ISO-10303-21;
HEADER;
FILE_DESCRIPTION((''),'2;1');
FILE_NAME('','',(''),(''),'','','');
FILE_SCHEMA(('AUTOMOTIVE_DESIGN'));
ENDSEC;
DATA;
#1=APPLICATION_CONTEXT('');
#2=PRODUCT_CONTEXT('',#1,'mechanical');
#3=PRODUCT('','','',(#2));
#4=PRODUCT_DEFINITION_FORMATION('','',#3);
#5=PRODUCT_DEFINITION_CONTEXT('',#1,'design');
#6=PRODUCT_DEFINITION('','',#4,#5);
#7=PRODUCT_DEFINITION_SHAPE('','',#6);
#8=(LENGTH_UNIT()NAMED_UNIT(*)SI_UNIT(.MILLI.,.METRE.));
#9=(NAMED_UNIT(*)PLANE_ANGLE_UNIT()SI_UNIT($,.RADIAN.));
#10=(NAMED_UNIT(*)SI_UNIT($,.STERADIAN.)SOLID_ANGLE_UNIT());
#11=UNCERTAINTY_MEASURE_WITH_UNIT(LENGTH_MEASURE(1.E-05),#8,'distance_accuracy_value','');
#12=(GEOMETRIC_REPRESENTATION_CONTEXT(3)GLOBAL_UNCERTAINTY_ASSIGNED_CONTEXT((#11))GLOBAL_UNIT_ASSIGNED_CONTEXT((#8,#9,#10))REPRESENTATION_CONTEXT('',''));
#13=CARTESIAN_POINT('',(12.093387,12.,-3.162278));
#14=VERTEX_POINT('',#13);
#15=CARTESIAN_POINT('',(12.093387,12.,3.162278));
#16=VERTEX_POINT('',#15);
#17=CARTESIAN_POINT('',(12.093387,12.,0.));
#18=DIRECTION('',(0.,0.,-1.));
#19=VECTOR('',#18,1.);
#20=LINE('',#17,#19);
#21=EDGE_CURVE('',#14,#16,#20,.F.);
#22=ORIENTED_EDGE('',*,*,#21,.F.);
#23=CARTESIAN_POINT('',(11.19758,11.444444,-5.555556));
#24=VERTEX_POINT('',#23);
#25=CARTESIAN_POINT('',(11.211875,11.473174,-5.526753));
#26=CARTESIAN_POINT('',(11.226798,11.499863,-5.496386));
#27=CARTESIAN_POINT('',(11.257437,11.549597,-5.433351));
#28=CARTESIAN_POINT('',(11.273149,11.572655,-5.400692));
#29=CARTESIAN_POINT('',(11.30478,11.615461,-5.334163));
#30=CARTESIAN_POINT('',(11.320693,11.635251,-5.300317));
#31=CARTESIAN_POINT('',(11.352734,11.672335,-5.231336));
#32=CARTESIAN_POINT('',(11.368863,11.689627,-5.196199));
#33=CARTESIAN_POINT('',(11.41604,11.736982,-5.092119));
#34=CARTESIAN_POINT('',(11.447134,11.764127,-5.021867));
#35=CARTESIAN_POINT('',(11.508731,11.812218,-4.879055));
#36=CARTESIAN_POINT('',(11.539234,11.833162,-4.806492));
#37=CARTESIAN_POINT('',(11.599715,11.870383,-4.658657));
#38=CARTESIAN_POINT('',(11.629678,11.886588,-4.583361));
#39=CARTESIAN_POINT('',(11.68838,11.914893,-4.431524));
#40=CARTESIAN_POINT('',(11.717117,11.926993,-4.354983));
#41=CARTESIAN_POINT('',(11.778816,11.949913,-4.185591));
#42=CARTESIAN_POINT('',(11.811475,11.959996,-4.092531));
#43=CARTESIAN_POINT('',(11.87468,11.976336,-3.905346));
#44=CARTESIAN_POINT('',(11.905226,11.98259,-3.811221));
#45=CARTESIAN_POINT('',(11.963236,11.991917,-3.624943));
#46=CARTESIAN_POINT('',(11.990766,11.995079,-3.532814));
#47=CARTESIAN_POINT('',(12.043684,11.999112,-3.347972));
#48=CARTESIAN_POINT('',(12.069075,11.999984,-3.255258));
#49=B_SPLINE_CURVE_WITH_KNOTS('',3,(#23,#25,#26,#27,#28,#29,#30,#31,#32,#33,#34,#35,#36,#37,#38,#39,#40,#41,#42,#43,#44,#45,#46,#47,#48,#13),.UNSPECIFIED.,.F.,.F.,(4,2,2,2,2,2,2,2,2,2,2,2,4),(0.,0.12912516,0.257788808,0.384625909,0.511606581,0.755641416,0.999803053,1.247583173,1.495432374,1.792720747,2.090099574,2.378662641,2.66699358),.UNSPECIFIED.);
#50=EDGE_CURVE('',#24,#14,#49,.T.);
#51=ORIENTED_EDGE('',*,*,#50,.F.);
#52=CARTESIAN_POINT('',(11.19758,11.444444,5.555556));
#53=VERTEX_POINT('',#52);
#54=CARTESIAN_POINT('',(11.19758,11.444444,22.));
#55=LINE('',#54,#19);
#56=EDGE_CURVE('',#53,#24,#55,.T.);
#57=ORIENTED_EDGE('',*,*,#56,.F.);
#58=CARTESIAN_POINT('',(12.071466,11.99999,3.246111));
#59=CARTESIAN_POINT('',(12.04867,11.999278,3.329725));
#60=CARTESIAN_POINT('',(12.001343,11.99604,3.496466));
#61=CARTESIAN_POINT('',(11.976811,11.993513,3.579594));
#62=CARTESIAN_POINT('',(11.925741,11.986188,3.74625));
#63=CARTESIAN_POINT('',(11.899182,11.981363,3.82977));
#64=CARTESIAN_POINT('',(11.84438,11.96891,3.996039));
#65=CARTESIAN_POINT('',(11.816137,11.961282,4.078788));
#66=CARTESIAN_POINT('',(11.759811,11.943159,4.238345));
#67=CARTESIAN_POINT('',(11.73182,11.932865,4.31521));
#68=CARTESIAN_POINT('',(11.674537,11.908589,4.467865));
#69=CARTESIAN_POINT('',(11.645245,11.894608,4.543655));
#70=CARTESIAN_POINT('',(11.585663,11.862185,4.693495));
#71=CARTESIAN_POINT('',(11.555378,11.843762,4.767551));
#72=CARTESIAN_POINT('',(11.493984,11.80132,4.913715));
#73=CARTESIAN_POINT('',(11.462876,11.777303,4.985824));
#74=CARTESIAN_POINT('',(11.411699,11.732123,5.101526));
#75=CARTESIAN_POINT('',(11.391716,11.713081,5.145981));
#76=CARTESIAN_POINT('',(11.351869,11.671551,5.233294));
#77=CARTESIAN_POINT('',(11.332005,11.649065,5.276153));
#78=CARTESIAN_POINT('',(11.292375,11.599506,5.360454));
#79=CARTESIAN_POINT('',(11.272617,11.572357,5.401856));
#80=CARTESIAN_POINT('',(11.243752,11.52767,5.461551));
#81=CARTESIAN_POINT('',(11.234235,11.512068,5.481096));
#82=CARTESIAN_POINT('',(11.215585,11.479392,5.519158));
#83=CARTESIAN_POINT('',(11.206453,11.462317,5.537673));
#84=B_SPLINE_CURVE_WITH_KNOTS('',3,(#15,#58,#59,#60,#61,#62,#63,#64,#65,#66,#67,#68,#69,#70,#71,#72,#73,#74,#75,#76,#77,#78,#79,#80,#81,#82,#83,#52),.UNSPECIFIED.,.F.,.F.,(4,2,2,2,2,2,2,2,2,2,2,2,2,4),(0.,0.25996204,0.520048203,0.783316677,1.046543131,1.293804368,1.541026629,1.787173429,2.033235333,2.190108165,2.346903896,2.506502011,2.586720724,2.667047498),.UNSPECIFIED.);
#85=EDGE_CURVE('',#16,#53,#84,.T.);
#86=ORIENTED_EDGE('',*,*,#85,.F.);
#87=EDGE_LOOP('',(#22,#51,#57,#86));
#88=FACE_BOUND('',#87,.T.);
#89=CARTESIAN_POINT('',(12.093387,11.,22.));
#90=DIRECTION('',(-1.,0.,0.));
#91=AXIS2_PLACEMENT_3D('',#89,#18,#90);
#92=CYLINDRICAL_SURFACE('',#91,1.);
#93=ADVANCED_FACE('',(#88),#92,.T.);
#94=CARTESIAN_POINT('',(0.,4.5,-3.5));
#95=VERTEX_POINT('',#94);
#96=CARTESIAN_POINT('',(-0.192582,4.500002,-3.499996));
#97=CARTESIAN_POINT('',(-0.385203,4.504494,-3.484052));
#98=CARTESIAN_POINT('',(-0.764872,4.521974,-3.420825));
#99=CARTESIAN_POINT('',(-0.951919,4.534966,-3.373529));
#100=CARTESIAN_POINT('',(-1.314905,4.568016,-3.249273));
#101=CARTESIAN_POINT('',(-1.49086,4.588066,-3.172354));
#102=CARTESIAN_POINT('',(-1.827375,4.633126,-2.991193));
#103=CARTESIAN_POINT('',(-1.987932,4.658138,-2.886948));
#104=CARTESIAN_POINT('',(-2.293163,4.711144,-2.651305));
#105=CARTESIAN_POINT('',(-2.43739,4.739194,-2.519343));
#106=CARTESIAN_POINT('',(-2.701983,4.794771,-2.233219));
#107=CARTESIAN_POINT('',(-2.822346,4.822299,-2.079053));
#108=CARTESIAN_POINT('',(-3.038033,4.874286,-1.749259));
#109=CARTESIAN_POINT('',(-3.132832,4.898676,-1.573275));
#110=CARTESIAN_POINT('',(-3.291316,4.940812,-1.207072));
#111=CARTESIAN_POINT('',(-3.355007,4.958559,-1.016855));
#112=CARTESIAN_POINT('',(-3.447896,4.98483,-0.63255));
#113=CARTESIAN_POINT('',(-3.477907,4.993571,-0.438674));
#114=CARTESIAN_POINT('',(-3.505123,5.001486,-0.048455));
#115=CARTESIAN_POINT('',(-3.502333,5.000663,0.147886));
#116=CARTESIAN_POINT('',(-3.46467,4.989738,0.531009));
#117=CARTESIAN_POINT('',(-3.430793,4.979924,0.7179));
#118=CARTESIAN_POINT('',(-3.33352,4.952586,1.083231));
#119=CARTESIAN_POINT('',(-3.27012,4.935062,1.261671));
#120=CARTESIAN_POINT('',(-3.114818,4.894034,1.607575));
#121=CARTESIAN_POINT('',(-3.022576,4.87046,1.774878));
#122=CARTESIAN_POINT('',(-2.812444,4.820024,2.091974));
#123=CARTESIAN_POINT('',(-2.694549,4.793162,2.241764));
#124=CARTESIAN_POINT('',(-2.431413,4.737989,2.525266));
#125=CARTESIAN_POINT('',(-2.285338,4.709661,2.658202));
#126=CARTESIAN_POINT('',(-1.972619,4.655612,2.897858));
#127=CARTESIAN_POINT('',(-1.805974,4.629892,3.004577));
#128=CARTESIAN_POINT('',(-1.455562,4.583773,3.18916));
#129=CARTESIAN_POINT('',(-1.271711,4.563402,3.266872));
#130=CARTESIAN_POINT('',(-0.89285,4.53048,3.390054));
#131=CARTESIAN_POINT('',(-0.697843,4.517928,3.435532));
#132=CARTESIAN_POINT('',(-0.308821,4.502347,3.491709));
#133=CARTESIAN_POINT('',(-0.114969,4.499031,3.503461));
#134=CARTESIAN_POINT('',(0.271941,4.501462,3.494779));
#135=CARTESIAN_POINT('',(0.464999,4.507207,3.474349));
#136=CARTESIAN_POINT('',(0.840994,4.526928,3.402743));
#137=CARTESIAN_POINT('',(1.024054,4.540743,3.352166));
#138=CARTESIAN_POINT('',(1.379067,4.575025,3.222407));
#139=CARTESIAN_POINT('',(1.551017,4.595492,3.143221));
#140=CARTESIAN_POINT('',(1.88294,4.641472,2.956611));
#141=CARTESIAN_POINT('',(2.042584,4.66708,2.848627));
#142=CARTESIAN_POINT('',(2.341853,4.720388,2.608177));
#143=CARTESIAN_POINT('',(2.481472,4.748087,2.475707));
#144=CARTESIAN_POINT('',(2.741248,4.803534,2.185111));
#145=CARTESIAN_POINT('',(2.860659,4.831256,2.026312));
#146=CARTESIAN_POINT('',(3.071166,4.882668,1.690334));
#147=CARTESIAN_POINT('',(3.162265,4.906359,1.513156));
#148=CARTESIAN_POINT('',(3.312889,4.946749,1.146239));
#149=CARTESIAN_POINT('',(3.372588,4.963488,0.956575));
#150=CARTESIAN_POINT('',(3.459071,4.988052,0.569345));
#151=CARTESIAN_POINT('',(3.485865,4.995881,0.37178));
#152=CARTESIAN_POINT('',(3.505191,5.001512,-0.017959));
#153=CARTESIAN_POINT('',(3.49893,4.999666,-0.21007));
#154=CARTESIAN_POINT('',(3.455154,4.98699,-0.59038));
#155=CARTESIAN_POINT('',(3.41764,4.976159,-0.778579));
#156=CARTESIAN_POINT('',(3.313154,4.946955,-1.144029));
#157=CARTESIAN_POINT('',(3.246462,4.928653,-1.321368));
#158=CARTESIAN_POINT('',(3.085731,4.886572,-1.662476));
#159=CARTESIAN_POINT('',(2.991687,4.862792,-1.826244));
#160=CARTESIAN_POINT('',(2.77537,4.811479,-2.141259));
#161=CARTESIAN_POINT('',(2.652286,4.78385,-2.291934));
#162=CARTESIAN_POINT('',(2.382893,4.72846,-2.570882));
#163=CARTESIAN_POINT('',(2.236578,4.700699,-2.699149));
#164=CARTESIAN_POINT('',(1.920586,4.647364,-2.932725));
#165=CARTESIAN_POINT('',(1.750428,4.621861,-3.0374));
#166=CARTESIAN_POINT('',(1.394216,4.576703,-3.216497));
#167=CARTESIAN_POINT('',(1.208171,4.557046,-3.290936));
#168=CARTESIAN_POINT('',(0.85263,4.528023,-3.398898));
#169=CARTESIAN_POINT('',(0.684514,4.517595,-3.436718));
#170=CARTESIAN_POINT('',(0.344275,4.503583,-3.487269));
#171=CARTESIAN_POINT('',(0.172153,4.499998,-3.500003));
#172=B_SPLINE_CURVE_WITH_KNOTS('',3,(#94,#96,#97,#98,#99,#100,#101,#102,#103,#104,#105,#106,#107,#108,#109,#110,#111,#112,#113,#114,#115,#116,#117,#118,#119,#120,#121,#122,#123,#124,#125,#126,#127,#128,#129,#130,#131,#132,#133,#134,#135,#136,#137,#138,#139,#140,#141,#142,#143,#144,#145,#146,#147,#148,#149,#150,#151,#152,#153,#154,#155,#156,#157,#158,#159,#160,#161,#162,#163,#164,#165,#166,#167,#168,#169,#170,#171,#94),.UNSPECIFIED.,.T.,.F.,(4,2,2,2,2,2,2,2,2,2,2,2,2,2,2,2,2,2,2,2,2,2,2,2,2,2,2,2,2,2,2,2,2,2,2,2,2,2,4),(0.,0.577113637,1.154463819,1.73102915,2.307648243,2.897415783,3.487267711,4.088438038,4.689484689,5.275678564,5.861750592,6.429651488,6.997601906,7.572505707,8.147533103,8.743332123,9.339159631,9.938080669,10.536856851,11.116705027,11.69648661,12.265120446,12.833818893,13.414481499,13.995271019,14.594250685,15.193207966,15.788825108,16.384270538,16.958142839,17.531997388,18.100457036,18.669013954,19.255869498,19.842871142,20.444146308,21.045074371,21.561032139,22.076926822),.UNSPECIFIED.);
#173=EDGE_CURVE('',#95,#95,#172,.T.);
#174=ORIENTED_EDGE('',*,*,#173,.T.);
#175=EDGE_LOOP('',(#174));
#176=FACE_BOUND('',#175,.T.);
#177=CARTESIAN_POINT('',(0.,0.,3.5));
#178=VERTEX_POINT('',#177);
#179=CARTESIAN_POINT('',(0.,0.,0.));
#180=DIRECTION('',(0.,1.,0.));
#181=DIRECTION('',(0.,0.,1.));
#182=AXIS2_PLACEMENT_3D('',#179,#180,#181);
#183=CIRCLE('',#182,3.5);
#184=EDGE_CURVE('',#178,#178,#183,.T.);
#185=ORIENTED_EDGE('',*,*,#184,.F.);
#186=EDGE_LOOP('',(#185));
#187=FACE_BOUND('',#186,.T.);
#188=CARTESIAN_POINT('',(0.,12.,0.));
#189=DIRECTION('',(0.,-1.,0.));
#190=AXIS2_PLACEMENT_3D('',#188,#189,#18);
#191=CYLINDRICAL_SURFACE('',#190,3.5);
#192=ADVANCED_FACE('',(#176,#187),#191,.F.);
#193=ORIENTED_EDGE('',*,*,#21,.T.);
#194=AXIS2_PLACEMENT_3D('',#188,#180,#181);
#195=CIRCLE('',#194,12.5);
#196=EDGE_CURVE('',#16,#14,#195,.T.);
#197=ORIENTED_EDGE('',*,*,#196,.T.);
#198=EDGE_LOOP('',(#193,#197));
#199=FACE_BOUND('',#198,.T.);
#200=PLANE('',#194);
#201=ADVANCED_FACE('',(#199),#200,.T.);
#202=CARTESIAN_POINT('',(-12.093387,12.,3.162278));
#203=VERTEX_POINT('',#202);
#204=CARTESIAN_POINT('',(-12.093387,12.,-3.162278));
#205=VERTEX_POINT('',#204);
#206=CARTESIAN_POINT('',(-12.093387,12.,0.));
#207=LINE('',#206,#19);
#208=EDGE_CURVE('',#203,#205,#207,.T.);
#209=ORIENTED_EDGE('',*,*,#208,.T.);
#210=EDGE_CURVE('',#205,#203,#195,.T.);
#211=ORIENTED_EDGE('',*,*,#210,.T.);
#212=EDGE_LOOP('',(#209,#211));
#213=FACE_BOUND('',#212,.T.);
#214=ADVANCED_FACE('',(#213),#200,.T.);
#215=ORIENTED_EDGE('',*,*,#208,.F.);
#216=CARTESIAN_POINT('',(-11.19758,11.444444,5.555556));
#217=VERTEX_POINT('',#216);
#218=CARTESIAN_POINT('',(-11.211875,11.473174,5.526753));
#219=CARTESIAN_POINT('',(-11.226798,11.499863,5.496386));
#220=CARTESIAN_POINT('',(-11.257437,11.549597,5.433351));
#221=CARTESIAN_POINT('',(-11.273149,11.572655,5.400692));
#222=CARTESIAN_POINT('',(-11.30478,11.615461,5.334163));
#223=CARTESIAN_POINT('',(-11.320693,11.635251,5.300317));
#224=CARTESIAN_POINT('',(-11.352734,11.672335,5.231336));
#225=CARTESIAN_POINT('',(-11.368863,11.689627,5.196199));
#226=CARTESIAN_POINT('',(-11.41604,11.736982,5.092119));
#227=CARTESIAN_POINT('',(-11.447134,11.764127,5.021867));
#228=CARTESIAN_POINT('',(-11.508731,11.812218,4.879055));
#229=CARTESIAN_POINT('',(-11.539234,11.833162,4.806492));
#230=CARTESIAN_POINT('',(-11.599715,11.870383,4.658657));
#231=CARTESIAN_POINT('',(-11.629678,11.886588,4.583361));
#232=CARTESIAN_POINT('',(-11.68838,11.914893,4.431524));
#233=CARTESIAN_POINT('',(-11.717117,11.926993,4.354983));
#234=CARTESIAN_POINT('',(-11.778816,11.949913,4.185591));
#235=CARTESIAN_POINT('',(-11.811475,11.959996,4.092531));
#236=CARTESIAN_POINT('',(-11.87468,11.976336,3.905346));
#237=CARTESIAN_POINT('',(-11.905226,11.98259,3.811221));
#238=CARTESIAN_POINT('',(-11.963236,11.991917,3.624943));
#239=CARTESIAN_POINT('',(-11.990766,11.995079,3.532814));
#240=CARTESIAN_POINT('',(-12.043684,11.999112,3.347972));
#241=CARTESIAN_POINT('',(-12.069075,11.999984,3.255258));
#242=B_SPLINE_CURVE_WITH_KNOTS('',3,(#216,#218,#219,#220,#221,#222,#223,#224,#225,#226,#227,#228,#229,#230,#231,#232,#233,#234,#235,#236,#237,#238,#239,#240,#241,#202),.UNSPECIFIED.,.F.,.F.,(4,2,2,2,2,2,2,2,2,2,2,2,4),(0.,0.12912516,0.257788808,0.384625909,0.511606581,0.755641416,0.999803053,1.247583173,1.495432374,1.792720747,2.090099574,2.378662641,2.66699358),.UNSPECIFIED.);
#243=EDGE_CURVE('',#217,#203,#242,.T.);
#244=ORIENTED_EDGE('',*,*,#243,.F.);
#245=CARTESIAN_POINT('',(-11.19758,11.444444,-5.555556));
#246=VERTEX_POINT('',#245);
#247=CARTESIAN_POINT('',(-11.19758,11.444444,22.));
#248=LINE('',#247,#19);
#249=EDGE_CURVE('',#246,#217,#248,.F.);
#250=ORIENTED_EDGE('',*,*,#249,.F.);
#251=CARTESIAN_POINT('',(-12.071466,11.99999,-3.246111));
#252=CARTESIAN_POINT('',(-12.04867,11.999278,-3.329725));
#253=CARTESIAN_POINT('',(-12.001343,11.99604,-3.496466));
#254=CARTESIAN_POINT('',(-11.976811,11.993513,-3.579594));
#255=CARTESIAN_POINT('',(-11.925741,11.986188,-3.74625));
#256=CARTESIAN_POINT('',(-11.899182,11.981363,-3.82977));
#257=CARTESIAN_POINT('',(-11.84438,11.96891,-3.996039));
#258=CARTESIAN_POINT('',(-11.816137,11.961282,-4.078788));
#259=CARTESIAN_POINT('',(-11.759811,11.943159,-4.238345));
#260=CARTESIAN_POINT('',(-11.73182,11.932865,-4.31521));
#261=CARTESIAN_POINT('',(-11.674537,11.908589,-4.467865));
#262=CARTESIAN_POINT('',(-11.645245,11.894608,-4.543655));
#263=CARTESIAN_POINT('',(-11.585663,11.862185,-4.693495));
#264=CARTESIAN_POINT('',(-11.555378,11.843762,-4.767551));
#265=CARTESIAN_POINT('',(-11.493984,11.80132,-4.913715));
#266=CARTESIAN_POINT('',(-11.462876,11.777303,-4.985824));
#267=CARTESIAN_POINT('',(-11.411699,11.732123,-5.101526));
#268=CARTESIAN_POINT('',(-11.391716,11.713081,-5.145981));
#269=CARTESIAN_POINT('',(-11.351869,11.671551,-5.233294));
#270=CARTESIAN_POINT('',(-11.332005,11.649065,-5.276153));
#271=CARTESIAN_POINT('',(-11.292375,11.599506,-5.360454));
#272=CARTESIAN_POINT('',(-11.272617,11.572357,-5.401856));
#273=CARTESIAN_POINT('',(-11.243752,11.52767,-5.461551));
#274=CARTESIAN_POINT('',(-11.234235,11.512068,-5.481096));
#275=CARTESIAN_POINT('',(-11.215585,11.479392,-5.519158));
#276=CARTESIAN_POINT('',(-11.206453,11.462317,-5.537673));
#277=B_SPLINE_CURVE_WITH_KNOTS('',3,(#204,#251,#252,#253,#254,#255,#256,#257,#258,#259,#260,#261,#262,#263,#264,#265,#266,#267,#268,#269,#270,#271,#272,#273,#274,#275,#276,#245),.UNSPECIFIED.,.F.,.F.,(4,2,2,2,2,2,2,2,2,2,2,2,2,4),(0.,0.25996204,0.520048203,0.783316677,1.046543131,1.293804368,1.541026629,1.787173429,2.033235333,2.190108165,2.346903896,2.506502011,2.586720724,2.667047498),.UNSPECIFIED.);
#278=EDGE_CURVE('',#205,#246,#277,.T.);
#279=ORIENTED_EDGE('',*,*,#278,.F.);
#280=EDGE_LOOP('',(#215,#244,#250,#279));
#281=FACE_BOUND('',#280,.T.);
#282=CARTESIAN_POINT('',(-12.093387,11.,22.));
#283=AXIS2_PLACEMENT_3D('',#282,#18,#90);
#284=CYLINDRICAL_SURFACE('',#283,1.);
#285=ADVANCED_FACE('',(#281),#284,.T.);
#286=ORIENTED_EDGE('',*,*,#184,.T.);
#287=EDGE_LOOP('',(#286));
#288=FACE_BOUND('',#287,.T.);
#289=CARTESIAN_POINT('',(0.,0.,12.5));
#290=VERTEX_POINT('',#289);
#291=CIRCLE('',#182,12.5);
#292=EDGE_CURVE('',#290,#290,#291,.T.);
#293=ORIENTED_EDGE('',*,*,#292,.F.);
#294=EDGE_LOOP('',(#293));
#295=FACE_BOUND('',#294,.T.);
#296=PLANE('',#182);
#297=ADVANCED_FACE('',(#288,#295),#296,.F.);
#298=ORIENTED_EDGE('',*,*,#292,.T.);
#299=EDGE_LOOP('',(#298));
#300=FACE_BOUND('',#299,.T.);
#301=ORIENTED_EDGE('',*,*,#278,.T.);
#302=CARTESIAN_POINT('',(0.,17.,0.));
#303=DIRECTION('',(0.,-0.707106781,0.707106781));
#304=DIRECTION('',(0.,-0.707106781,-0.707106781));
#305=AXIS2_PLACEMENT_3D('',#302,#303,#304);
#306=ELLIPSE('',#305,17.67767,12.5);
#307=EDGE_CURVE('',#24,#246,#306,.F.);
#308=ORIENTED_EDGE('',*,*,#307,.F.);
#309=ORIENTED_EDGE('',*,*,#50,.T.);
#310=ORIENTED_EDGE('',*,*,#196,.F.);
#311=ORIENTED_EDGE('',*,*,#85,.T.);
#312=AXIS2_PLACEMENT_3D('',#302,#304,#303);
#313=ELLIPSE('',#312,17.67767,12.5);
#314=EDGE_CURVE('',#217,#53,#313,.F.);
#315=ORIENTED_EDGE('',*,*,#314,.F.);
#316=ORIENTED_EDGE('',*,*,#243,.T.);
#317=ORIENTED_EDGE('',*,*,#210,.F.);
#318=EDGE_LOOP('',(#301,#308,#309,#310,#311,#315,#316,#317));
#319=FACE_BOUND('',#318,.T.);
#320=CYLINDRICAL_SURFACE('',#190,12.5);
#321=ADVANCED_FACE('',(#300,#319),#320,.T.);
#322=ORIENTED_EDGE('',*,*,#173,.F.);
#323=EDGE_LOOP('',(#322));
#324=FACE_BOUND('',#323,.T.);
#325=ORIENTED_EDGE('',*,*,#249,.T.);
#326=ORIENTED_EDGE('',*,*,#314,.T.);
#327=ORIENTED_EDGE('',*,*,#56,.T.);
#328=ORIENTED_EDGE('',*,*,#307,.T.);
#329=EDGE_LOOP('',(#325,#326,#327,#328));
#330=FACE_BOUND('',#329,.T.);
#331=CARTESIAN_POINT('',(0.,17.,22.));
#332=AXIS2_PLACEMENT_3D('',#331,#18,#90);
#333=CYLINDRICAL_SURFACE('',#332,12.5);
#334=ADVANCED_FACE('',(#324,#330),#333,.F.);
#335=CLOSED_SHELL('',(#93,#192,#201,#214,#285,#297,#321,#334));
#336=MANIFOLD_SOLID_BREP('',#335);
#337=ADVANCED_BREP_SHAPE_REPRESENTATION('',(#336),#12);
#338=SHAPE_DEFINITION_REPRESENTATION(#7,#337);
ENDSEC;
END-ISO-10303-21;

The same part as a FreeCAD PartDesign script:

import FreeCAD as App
import Part
import Sketcher
from FreeCAD import Vector


def edges_at(feature, points):
    """Names of the edges that pass closest to the given points."""
    edges = feature.Shape.Edges
    near = lambda p: min(range(len(edges)), key=lambda i: edges[i].distToShape(Part.Vertex(*p))[0])
    return sorted({f"Edge{near(p) + 1}" for p in points})

doc = App.newDocument("Part")
body = doc.addObject("PartDesign::Body", "Body")

# Sketch on XZ plane
sketch1 = body.newObject("Sketcher::SketchObject", "Sketch")
sketch1.AttachmentSupport = (doc.getObject("XZ_Plane"), [""])
sketch1.MapMode = "FlatFace"
sketch1.addGeometry([
    Part.Circle(Vector(0, 0, 0), Vector(0, 0, 1), 12.5),
    Part.Circle(Vector(0, 0, 0), Vector(0, 0, 1), 3.5),
], False)
sketch1.addConstraint([
    Sketcher.Constraint("Coincident", 0, 3, -1, 1),
    Sketcher.Constraint("Coincident", 1, 3, -1, 1),
    Sketcher.Constraint("Diameter", 0, 25.0),
    Sketcher.Constraint("Diameter", 1, 7.0),
])
pad1 = body.newObject("PartDesign::Pad", "Pad")
pad1.Profile = sketch1
pad1.Length = 12
pad1.Reversed = True

# Sketch on XY plane
sketch2 = body.newObject("Sketcher::SketchObject", "Sketch001")
sketch2.AttachmentSupport = (doc.getObject("XY_Plane"), [""])
sketch2.MapMode = "FlatFace"
sketch2.addGeometry(Part.Circle(Vector(0, 17, 0), Vector(0, 0, 1), 12.5), False)
sketch2.addConstraint([
    Sketcher.Constraint("PointOnObject", 0, 3, -2),
    Sketcher.Constraint("Diameter", 0, 25.0),
    Sketcher.Constraint("DistanceY", -1, 1, 0, 3, 17.0),
])
pocket1 = body.newObject("PartDesign::Pocket", "Pocket")
pocket1.Profile = sketch2
pocket1.Type = "ThroughAll"
pocket1.Midplane = True
doc.recompute()

fillet = body.newObject("PartDesign::Fillet", "Fillet")
fillet.Base = (pocket1, edges_at(pocket1, [(11.456, 12, 0), (-11.456, 12, 0)]))
fillet.Radius = 1

doc.recompute()
